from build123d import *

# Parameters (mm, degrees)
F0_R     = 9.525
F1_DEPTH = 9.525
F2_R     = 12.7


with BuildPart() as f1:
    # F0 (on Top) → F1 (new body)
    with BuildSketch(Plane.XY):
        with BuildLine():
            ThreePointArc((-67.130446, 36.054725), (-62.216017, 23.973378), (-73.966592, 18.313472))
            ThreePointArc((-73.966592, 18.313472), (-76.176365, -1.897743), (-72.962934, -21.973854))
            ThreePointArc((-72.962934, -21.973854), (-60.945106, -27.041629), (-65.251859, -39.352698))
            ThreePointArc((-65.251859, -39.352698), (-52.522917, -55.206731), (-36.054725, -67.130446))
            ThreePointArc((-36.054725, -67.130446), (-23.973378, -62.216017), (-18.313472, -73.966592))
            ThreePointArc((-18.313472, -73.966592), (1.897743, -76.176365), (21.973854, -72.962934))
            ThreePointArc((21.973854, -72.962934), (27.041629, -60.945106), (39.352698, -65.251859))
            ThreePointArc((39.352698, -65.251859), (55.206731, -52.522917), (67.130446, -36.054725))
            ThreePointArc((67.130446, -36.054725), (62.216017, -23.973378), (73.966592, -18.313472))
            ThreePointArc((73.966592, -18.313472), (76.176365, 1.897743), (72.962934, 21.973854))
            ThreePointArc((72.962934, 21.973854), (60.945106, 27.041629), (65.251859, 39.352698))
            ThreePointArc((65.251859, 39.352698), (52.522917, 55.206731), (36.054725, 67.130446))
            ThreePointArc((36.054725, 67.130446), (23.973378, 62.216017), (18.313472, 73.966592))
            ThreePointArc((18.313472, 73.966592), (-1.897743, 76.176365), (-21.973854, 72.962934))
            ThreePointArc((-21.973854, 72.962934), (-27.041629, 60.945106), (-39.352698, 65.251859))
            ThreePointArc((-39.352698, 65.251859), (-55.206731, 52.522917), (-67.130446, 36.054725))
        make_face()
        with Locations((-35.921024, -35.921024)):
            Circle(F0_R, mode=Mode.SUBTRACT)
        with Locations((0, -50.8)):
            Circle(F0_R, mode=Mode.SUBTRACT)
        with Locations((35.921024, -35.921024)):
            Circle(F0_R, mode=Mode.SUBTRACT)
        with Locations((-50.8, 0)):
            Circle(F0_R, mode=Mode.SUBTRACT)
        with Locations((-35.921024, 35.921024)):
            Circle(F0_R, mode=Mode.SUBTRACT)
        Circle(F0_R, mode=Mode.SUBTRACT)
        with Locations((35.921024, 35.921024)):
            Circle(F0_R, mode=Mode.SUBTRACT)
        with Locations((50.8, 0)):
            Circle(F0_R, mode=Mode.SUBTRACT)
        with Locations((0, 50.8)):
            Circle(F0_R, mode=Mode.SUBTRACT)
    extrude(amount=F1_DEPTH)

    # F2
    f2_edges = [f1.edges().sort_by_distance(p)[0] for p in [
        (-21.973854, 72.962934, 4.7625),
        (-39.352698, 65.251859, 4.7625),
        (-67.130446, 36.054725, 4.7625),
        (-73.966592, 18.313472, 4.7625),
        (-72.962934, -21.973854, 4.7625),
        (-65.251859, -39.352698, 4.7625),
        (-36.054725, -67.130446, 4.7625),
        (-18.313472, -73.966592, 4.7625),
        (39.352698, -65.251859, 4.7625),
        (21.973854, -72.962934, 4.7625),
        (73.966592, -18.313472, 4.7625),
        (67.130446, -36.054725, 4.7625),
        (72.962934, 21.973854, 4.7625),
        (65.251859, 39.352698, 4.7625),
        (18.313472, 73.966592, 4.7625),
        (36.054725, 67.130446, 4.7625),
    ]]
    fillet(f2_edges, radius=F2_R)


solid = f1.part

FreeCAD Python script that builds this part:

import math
import FreeCAD as App
import Part
import Sketcher

V = App.Vector
Q = App.Units.Quantity


def edges_at(feature, points):
    """Names of the edges that pass closest to the given points."""
    edges = feature.Shape.Edges
    near = lambda p: min(range(len(edges)), key=lambda i: edges[i].distToShape(Part.Vertex(*p))[0])
    return sorted({f"Edge{near(p) + 1}" for p in points})

doc = App.newDocument("Part")
body = doc.addObject("PartDesign::Body", "Body")

# Sketch on XY plane
sketch1 = body.newObject("Sketcher::SketchObject", "Sketch")
sketch1.AttachmentSupport = (doc.getObject("XY_Plane"), [""])
sketch1.MapMode = "FlatFace"
sketch1.addGeometry(Part.ArcOfCircle(Part.Circle(V(-71, 27, 0), V(0, 0, 1), 10), math.radians(-107), math.radians(65)), False)
sketch1.addGeometry(Part.ArcOfCircle(Part.Circle(V(0, 0, 0), V(0, 0, 1), 76), math.radians(166), math.radians(197)), False)
sketch1.addGeometry(Part.ArcOfCircle(Part.Circle(V(-70, -31, 0), V(0, 0, 1), 10), math.radians(-62), math.radians(110)), False)
sketch1.addGeometry(Part.ArcOfCircle(Part.Circle(V(0, 0, 0), V(0, 0, 1), 76), math.radians(-149), math.radians(-118)), False)
sketch1.addGeometry(Part.ArcOfCircle(Part.Circle(V(-27, -71, 0), V(0, 0, 1), 10), math.radians(-17), math.radians(155)), False)
sketch1.addGeometry(Part.ArcOfCircle(Part.Circle(V(0, 0, 0), V(0, 0, 1), 76), math.radians(-104), math.radians(-73)), False)
sketch1.addGeometry(Part.ArcOfCircle(Part.Circle(V(31, -70, 0), V(0, 0, 1), 10), math.radians(28), math.radians(200)), False)
sketch1.addGeometry(Part.ArcOfCircle(Part.Circle(V(0, 0, 0), V(0, 0, 1), 76), math.radians(-59), math.radians(-28)), False)
sketch1.addGeometry(Part.ArcOfCircle(Part.Circle(V(71, -27, 0), V(0, 0, 1), 10), math.radians(73), math.radians(245)), False)
sketch1.addGeometry(Part.ArcOfCircle(Part.Circle(V(0, 0, 0), V(0, 0, 1), 76), math.radians(-14), math.radians(17)), False)
sketch1.addGeometry(Part.ArcOfCircle(Part.Circle(V(70, 31, 0), V(0, 0, 1), 10), math.radians(118), math.radians(290)), False)
sketch1.addGeometry(Part.ArcOfCircle(Part.Circle(V(0, 0, 0), V(0, 0, 1), 76), math.radians(31), math.radians(62)), False)
sketch1.addGeometry(Part.ArcOfCircle(Part.Circle(V(27, 71, 0), V(0, 0, 1), 10), math.radians(163), math.radians(335)), False)
sketch1.addGeometry(Part.ArcOfCircle(Part.Circle(V(0, 0, 0), V(0, 0, 1), 76), math.radians(76), math.radians(107)), False)
sketch1.addGeometry(Part.ArcOfCircle(Part.Circle(V(-31, 70, 0), V(0, 0, 1), 10), math.radians(-152), math.radians(20)), False)
sketch1.addGeometry(Part.ArcOfCircle(Part.Circle(V(0, 0, 0), V(0, 0, 1), 76), math.radians(121), math.radians(152)), False)
sketch1.addGeometry(Part.Circle(V(-36, -36, 0), V(0, 0, 1), 10), False)
sketch1.addGeometry(Part.Circle(V(0, -51, 0), V(0, 0, 1), 10), False)
sketch1.addGeometry(Part.Circle(V(36, -36, 0), V(0, 0, 1), 10), False)
sketch1.addGeometry(Part.Circle(V(-51, 0, 0), V(0, 0, 1), 10), False)
sketch1.addGeometry(Part.Circle(V(-36, 36, 0), V(0, 0, 1), 10), False)
sketch1.addGeometry(Part.Circle(V(0, 0, 0), V(0, 0, 1), 10), False)
sketch1.addGeometry(Part.Circle(V(51, 0, 0), V(0, 0, 1), 10), False)
sketch1.addGeometry(Part.Circle(V(0, 51, 0), V(0, 0, 1), 10), False)
sketch1.addGeometry(Part.Circle(V(36, 36, 0), V(0, 0, 1), 10), False)
sketch1.addConstraint(Sketcher.Constraint("Coincident", 0, 1, 1, 1))
sketch1.addConstraint(Sketcher.Constraint("Coincident", 1, 2, 2, 2))
sketch1.addConstraint(Sketcher.Constraint("Coincident", 2, 1, 3, 1))
sketch1.addConstraint(Sketcher.Constraint("Coincident", 3, 2, 4, 2))
sketch1.addConstraint(Sketcher.Constraint("Coincident", 4, 1, 5, 1))
sketch1.addConstraint(Sketcher.Constraint("Coincident", 5, 2, 6, 2))
sketch1.addConstraint(Sketcher.Constraint("Coincident", 6, 1, 7, 1))
sketch1.addConstraint(Sketcher.Constraint("Coincident", 7, 2, 8, 2))
sketch1.addConstraint(Sketcher.Constraint("Coincident", 8, 1, 9, 1))
sketch1.addConstraint(Sketcher.Constraint("Coincident", 9, 2, 10, 2))
sketch1.addConstraint(Sketcher.Constraint("Coincident", 10, 1, 11, 1))
sketch1.addConstraint(Sketcher.Constraint("Coincident", 11, 2, 12, 2))
sketch1.addConstraint(Sketcher.Constraint("Coincident", 12, 1, 13, 1))
sketch1.addConstraint(Sketcher.Constraint("Coincident", 13, 2, 14, 2))
sketch1.addConstraint(Sketcher.Constraint("Coincident", 14, 1, 15, 1))
sketch1.addConstraint(Sketcher.Constraint("Coincident", 15, 2, 0, 2))
sketch1.addConstraint(Sketcher.Constraint("Coincident", 1, 3, -1, 1))
sketch1.addConstraint(Sketcher.Constraint("Coincident", 3, 3, -1, 1))
sketch1.addConstraint(Sketcher.Constraint("Coincident", 5, 3, -1, 1))
sketch1.addConstraint(Sketcher.Constraint("Coincident", 7, 3, -1, 1))
sketch1.addConstraint(Sketcher.Constraint("Coincident", 9, 3, -1, 1))
sketch1.addConstraint(Sketcher.Constraint("Coincident", 11, 3, -1, 1))
sketch1.addConstraint(Sketcher.Constraint("Coincident", 13, 3, -1, 1))
sketch1.addConstraint(Sketcher.Constraint("Coincident", 15, 3, -1, 1))
sketch1.addConstraint(Sketcher.Constraint("Coincident", 21, 3, -1, 1))
sketch1.addConstraint(Sketcher.Constraint("Equal", 0, 2))
sketch1.addConstraint(Sketcher.Constraint("Equal", 2, 4))
sketch1.addConstraint(Sketcher.Constraint("Equal", 1, 5))
sketch1.addConstraint(Sketcher.Constraint("Equal", 4, 6))
sketch1.addConstraint(Sketcher.Constraint("Equal", 3, 7))
sketch1.addConstraint(Sketcher.Constraint("Equal", 6, 8))
sketch1.addConstraint(Sketcher.Constraint("Equal", 5, 9))
sketch1.addConstraint(Sketcher.Constraint("Equal", 8, 10))
sketch1.addConstraint(Sketcher.Constraint("Equal", 7, 11))
sketch1.addConstraint(Sketcher.Constraint("Equal", 10, 12))
sketch1.addConstraint(Sketcher.Constraint("Equal", 9, 13))
sketch1.addConstraint(Sketcher.Constraint("Equal", 12, 14))
sketch1.addConstraint(Sketcher.Constraint("Equal", 11, 15))
sketch1.addConstraint(Sketcher.Constraint("Equal", 14, 16))
sketch1.addConstraint(Sketcher.Constraint("Equal", 16, 17))
sketch1.addConstraint(Sketcher.Constraint("Equal", 17, 18))
sketch1.addConstraint(Sketcher.Constraint("Equal", 18, 19))
sketch1.addConstraint(Sketcher.Constraint("Equal", 19, 20))
sketch1.addConstraint(Sketcher.Constraint("Equal", 20, 21))
sketch1.addConstraint(Sketcher.Constraint("Equal", 21, 22))
sketch1.addConstraint(Sketcher.Constraint("Equal", 22, 23))
sketch1.addConstraint(Sketcher.Constraint("Equal", 23, 24))
sketch1.addConstraint(Sketcher.Constraint("Symmetric", 0, 3, 8, 3, -1, 1))
sketch1.addConstraint(Sketcher.Constraint("Symmetric", 2, 3, 10, 3, -1, 1))
sketch1.addConstraint(Sketcher.Constraint("Symmetric", 4, 3, 12, 3, -1, 1))
sketch1.addConstraint(Sketcher.Constraint("Symmetric", 6, 3, 14, 3, -1, 1))
sketch1.addConstraint(Sketcher.Constraint("Symmetric", 18, 3, 20, 3, -1, 1))
sketch1.addConstraint(Sketcher.Constraint("Symmetric", 19, 3, 22, 3, -1, 1))
sketch1.addConstraint(Sketcher.Constraint("Symmetric", 17, 3, 23, 3, -1, 1))
sketch1.addConstraint(Sketcher.Constraint("Symmetric", 16, 3, 24, 3, -1, 1))
sketch1.addConstraint(Sketcher.Constraint("Symmetric", 16, 3, 18, 3, -2))
sketch1.addConstraint(Sketcher.Constraint("PointOnObject", 17, 3, -2))
sketch1.addConstraint(Sketcher.Constraint("PointOnObject", 19, 3, -1))
sketch1.addConstraint(Sketcher.Constraint("Radius", 1, Q("2.9999999 in")))
sketch1.addConstraint(Sketcher.Constraint("Radius", 3, Q("3 in")))
sketch1.addConstraint(Sketcher.Constraint("Diameter", 16, Q("0.75 in")))
sketch1.addConstraint(Sketcher.Constraint("DistanceY", 17, 3, -1, 1, Q("2 in")))
sketch1.addConstraint(Sketcher.Constraint("DistanceX", 19, 3, -1, 1, Q("2 in")))
sketch1.addConstraint(Sketcher.Constraint("DistanceY", 2, 1, -1, 1, Q("39.352698 mm")))
sketch1.addConstraint(Sketcher.Constraint("DistanceX", -1, 1, 6, 1, Q("39.352698 mm")))
sketch1.addConstraint(Sketcher.Constraint("DistanceY", 4, 3, 2, 3, Q("40.199301 mm")))
sketch1.addConstraint(Sketcher.Constraint("DistanceX", 6, 3, 8, 3, Q("40.199301 mm")))
sketch1.addConstraint(Sketcher.Constraint("DistanceY", 1, 2, 0, 3, Q("49.372001 mm")))
sketch1.addConstraint(Sketcher.Constraint("DistanceX", 3, 2, 16, 3, Q("0.133701 mm")))
sketch1.addConstraint(Sketcher.Constraint("DistanceX", 4, 3, 5, 2, Q("49.372001 mm")))
sketch1.addConstraint(Sketcher.Constraint("DistanceY", 7, 2, 18, 3, Q("0.133701 mm")))
sketch1.addConstraint(Sketcher.Constraint("DistanceX", 0, 3, -1, 1, Q("71.10402 mm")))
sketch1.addConstraint(Sketcher.Constraint("DistanceX", 2, 3, -1, 1, Q("69.651549 mm")))
pad1 = body.newObject("PartDesign::Pad", "Pad")
pad1.Profile = sketch1
pad1.Length = Q("0.375 in")
doc.recompute()

fillet = body.newObject("PartDesign::Fillet", "Fillet")
fillet.Base = (pad1, edges_at(pad1, [
    (-21.974, 72.963, 4.763),
    (-39.353, 65.252, 4.763),
    (-67.13, 36.055, 4.763),
    (-73.967, 18.313, 4.763),
    (-72.963, -21.974, 4.763),
    (-65.252, -39.353, 4.763),
    (-36.055, -67.13, 4.763),
    (-18.313, -73.967, 4.763),
    (39.353, -65.252, 4.763),
    (21.974, -72.963, 4.763),
    (73.967, -18.313, 4.763),
    (67.13, -36.055, 4.763),
    (72.963, 21.974, 4.763),
    (65.252, 39.353, 4.763),
    (18.313, 73.967, 4.763),
    (36.055, 67.13, 4.763),
]))
fillet.Radius = Q("0.5 in")

doc.recompute()
